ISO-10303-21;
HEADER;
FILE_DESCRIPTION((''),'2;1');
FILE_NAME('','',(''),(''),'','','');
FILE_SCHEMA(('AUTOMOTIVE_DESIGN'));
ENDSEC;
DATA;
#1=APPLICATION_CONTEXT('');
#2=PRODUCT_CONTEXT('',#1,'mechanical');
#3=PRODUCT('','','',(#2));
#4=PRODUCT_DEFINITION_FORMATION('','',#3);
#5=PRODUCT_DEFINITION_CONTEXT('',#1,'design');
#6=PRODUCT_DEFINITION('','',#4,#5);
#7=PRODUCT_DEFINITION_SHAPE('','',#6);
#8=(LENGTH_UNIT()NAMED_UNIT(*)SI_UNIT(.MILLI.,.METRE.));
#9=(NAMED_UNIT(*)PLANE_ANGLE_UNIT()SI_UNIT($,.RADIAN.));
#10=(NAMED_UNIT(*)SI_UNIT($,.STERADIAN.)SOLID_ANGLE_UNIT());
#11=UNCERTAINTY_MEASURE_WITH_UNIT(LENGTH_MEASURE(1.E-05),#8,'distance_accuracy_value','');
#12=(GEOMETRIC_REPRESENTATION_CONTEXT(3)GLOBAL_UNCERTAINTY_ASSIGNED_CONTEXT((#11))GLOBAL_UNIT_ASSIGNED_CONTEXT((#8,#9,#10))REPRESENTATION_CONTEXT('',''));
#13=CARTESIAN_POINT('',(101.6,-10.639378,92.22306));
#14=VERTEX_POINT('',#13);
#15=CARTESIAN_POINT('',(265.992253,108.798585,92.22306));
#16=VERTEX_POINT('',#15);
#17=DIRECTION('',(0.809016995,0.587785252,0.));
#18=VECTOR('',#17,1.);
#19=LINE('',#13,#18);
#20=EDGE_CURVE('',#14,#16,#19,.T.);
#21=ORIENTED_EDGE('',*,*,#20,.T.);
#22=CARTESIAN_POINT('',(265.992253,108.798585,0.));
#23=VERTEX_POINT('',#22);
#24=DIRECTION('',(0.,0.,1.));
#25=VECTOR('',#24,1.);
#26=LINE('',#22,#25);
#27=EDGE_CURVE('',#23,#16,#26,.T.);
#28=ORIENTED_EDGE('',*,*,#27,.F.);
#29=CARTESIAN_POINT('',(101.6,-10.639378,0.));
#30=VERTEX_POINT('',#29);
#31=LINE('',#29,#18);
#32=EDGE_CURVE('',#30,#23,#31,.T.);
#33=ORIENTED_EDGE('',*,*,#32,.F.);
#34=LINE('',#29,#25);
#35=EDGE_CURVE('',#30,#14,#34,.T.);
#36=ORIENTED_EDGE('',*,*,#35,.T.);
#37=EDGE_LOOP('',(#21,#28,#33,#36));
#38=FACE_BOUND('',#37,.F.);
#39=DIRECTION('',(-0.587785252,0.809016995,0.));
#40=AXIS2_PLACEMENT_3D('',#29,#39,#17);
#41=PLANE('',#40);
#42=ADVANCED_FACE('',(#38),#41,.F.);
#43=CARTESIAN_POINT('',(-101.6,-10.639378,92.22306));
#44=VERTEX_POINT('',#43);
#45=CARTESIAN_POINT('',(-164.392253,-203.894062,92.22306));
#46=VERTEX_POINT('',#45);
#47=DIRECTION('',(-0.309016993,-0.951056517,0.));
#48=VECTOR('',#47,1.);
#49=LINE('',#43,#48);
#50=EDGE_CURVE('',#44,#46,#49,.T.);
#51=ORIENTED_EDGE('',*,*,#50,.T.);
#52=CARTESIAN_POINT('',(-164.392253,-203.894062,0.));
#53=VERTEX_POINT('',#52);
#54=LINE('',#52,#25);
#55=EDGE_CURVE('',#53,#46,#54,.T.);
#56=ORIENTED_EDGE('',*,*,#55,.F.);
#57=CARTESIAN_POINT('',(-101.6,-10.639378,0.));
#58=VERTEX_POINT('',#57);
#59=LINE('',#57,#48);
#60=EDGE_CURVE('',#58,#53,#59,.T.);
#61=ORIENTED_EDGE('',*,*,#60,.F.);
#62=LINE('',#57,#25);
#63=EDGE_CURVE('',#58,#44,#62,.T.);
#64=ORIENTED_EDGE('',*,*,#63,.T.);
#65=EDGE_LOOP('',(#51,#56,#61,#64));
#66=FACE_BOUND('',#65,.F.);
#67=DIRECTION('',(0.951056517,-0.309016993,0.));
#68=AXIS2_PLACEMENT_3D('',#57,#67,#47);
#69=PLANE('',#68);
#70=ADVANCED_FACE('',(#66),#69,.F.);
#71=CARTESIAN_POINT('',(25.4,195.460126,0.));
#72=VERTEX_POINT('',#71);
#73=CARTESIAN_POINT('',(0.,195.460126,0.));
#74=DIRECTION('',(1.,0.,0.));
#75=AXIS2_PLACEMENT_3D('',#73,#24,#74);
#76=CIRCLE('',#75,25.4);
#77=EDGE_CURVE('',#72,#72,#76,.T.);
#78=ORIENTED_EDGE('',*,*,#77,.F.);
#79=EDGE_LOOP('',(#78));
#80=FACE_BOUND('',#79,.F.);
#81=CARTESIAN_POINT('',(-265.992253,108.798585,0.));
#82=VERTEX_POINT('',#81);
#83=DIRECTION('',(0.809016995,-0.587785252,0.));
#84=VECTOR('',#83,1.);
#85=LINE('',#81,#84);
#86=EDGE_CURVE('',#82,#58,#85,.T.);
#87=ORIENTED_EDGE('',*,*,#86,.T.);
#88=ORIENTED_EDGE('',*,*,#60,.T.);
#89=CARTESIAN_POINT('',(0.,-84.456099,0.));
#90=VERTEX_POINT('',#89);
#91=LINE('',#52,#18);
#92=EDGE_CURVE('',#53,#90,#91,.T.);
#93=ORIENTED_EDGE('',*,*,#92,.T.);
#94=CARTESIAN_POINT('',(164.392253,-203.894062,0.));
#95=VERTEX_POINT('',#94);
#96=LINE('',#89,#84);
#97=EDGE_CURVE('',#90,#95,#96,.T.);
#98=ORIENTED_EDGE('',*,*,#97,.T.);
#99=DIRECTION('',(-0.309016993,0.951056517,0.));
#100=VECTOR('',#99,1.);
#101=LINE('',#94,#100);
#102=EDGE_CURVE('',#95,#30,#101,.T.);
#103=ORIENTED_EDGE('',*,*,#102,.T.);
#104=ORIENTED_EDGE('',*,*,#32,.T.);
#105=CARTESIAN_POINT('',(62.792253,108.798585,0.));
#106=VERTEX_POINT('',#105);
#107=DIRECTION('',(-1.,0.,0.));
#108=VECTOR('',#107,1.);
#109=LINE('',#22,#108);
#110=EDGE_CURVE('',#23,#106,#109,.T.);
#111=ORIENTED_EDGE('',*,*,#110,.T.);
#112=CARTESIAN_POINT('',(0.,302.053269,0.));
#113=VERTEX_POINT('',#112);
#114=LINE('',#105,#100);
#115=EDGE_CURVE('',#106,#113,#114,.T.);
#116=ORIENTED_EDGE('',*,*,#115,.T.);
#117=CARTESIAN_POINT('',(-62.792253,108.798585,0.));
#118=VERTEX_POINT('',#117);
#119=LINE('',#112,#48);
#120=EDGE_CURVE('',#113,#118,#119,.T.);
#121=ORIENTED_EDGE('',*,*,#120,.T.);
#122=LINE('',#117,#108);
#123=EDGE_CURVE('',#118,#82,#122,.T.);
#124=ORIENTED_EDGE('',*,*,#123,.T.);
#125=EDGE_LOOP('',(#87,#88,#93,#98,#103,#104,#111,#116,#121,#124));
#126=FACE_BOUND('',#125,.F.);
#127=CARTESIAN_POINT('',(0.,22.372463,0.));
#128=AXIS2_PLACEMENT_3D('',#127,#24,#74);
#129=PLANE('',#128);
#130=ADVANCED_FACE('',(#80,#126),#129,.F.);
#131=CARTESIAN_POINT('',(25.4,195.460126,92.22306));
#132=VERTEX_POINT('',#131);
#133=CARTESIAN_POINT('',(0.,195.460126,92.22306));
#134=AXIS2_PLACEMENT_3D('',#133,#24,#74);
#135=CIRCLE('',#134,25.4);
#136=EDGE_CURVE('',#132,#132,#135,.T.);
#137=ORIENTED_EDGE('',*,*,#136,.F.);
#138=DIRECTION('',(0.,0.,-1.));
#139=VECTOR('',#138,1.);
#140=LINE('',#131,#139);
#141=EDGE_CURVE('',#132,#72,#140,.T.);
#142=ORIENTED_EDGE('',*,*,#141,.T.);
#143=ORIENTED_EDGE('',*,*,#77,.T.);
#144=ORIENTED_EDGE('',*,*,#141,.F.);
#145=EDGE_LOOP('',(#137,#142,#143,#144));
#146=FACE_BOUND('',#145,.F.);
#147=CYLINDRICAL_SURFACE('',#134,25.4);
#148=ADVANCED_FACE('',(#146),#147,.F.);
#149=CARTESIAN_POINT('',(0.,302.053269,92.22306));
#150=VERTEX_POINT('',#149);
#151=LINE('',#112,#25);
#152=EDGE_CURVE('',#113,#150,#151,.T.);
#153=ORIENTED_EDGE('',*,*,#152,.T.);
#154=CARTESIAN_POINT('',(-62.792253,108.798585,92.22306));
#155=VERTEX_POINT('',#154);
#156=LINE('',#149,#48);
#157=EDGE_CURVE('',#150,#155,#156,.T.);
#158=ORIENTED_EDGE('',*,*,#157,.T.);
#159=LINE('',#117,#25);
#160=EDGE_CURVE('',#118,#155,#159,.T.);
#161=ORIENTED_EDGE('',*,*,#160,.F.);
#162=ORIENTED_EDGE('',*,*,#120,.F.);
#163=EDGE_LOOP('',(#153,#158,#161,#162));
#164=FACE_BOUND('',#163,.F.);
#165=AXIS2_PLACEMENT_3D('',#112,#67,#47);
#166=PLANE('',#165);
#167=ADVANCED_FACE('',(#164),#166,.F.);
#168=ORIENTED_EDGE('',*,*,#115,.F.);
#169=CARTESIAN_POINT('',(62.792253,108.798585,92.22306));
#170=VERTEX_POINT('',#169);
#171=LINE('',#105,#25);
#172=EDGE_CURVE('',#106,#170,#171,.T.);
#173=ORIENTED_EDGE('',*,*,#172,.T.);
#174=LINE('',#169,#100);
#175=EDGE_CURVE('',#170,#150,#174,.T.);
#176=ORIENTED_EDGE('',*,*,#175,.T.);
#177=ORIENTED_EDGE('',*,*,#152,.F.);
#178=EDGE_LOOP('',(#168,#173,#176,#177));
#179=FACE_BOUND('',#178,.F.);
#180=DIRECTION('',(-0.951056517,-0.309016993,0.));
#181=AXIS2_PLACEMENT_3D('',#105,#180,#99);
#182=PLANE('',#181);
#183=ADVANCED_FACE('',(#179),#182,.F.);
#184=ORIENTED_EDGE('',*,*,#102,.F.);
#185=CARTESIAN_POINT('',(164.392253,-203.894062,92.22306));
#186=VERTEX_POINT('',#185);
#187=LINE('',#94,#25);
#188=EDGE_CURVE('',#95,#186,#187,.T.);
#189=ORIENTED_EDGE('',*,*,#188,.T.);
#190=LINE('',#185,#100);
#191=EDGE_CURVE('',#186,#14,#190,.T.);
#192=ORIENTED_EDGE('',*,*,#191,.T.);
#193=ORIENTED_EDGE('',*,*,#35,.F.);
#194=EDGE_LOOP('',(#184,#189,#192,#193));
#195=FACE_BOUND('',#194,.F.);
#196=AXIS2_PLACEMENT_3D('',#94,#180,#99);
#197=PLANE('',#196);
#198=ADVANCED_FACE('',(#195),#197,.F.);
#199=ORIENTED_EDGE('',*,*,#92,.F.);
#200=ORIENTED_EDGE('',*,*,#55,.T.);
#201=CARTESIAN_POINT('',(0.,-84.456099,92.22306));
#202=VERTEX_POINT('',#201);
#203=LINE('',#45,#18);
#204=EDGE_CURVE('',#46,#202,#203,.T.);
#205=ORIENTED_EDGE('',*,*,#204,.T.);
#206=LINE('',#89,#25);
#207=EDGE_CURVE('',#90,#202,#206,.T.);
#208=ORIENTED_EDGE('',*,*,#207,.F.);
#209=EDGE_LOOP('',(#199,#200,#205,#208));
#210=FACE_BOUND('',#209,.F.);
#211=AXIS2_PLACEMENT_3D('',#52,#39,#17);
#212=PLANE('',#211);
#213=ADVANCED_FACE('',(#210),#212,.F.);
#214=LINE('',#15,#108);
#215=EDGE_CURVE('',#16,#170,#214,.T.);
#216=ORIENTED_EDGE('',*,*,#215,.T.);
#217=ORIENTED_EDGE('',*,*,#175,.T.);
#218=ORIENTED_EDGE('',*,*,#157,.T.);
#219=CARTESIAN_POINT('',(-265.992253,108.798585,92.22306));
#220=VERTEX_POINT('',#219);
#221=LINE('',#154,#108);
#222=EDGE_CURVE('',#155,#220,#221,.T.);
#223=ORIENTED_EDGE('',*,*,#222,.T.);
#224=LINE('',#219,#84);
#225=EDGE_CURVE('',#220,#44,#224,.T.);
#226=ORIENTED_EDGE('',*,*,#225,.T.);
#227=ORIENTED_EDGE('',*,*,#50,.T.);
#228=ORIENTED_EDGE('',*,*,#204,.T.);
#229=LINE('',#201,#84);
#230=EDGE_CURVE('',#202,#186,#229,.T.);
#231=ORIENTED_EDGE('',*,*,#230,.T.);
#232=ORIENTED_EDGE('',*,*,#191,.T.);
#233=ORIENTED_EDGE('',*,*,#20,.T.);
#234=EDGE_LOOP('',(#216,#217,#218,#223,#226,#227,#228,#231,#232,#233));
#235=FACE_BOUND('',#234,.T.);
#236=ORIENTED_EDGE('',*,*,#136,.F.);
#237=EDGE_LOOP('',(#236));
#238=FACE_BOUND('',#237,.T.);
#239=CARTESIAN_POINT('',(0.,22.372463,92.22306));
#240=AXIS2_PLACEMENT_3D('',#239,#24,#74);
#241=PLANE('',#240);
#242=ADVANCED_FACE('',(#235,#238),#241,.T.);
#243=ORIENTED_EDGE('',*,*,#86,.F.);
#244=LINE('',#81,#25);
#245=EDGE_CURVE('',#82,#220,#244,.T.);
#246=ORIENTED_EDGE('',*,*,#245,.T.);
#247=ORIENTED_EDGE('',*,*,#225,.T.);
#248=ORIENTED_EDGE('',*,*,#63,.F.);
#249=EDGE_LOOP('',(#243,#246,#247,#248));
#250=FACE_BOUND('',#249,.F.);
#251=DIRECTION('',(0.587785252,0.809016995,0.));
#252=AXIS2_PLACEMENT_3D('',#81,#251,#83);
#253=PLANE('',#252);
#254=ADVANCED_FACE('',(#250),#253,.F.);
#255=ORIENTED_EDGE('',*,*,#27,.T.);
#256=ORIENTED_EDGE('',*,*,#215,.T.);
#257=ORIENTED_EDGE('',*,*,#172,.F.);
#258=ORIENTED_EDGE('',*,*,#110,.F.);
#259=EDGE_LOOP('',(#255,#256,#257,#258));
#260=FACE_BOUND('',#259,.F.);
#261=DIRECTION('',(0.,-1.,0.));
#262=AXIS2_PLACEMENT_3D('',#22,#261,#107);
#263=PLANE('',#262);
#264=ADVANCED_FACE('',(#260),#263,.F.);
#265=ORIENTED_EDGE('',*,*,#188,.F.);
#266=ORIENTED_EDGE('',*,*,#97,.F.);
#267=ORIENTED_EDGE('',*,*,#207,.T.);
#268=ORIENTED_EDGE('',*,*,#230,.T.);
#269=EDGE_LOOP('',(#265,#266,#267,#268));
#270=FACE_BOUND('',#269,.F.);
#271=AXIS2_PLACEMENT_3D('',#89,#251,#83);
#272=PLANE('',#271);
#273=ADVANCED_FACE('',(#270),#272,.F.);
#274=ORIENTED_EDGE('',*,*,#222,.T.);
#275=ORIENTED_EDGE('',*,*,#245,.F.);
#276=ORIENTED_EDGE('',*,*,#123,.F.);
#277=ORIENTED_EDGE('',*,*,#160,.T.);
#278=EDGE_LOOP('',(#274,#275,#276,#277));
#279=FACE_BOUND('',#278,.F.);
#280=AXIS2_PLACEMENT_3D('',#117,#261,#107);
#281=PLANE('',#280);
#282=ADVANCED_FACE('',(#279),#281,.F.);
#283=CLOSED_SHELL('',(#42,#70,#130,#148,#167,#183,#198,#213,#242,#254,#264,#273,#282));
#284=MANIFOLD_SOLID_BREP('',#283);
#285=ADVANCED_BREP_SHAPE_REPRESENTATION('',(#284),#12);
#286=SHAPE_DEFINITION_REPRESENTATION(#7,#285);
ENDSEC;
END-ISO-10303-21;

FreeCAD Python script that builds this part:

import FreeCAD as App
import Part
import Sketcher

V = App.Vector
Q = App.Units.Quantity

doc = App.newDocument("Part")
body = doc.addObject("PartDesign::Body", "Body")

sketch1 = body.newObject("Sketcher::SketchObject", "Sketch")
sketch1.AttachmentSupport = (doc.getObject("XY_Plane"), [""])
sketch1.MapMode = "FlatFace"
sketch1.addGeometry([
    Part.LineSegment(V(63, 109, 0), V(0, 302, 0)),
    Part.LineSegment(V(0, 302, 0), V(-63, 109, 0)),
    Part.LineSegment(V(-63, 109, 0), V(-266, 109, 0)),
    Part.LineSegment(V(-266, 109, 0), V(-102, -11, 0)),
    Part.LineSegment(V(-102, -11, 0), V(-164, -204, 0)),
    Part.LineSegment(V(-164, -204, 0), V(0, -84, 0)),
    Part.LineSegment(V(0, -84, 0), V(164, -204, 0)),
    Part.LineSegment(V(164, -204, 0), V(102, -11, 0)),
    Part.LineSegment(V(102, -11, 0), V(266, 109, 0)),
    Part.LineSegment(V(266, 109, 0), V(63, 109, 0)),
], False)
sketch1.addConstraint([
    Sketcher.Constraint("Coincident", 0, 2, 1, 1),
    Sketcher.Constraint("Coincident", 1, 2, 2, 1),
    Sketcher.Constraint("Coincident", 2, 2, 3, 1),
    Sketcher.Constraint("Coincident", 3, 2, 4, 1),
    Sketcher.Constraint("Coincident", 4, 2, 5, 1),
    Sketcher.Constraint("Coincident", 5, 2, 6, 1),
    Sketcher.Constraint("Coincident", 6, 2, 7, 1),
    Sketcher.Constraint("Coincident", 7, 2, 8, 1),
    Sketcher.Constraint("Coincident", 8, 2, 9, 1),
    Sketcher.Constraint("Coincident", 9, 2, 0, 1),
    Sketcher.Constraint("Horizontal", 2),
    Sketcher.Constraint("Horizontal", 9),
    Sketcher.Constraint("Symmetric", 4, 2, 6, 2, -2),
    Sketcher.Constraint("Symmetric", 3, 2, 7, 2, -2),
    Sketcher.Constraint("Symmetric", 2, 2, 8, 2, -2),
    Sketcher.Constraint("PointOnObject", 0, 2, -2),
    Sketcher.Constraint("PointOnObject", 5, 2, -2),
    Sketcher.Constraint("Parallel", 1, 4),
    Sketcher.Constraint("Parallel", 3, 6),
    Sketcher.Constraint("Parallel", 0, 7),
    Sketcher.Constraint("Equal", 1, 3),
    Sketcher.Constraint("Equal", 3, 4),
    Sketcher.Constraint("Equal", 4, 5),
    Sketcher.Constraint("DistanceX", 2, 2, 2, 1, Q("8 in")),
    Sketcher.Constraint("Distance", 0, Q("8 in")),
    Sketcher.Constraint("Angle", 0, Q("108 deg")),
    Sketcher.Constraint("DistanceY", 5, 2, -1, 1, Q("84.456099 mm")),
])
pad1 = body.newObject("PartDesign::Pad", "Pad")
pad1.Profile = sketch1
pad1.Length = 92.22306

sketch2 = body.newObject("Sketcher::SketchObject", "Sketch001")
sketch2.AttachmentSupport = (doc.getObject("XY_Plane"), [""])
sketch2.MapMode = "FlatFace"
sketch2.AttachmentOffset = App.Placement(V(0, 0, 92.22306), App.Rotation())
sketch2.addGeometry(Part.Circle(V(0, 195, 0), V(0, 0, 1), 25), False)
sketch2.addConstraint([
    Sketcher.Constraint("PointOnObject", 0, 3, -2),
    Sketcher.Constraint("Diameter", 0, Q("2 in")),
    Sketcher.Constraint("DistanceY", -1, 1, 0, 3, Q("195.460126 mm")),
])
pocket1 = body.newObject("PartDesign::Pocket", "Pocket")
pocket1.Profile = sketch2
pocket1.Length = 267.25115

doc.recompute()
